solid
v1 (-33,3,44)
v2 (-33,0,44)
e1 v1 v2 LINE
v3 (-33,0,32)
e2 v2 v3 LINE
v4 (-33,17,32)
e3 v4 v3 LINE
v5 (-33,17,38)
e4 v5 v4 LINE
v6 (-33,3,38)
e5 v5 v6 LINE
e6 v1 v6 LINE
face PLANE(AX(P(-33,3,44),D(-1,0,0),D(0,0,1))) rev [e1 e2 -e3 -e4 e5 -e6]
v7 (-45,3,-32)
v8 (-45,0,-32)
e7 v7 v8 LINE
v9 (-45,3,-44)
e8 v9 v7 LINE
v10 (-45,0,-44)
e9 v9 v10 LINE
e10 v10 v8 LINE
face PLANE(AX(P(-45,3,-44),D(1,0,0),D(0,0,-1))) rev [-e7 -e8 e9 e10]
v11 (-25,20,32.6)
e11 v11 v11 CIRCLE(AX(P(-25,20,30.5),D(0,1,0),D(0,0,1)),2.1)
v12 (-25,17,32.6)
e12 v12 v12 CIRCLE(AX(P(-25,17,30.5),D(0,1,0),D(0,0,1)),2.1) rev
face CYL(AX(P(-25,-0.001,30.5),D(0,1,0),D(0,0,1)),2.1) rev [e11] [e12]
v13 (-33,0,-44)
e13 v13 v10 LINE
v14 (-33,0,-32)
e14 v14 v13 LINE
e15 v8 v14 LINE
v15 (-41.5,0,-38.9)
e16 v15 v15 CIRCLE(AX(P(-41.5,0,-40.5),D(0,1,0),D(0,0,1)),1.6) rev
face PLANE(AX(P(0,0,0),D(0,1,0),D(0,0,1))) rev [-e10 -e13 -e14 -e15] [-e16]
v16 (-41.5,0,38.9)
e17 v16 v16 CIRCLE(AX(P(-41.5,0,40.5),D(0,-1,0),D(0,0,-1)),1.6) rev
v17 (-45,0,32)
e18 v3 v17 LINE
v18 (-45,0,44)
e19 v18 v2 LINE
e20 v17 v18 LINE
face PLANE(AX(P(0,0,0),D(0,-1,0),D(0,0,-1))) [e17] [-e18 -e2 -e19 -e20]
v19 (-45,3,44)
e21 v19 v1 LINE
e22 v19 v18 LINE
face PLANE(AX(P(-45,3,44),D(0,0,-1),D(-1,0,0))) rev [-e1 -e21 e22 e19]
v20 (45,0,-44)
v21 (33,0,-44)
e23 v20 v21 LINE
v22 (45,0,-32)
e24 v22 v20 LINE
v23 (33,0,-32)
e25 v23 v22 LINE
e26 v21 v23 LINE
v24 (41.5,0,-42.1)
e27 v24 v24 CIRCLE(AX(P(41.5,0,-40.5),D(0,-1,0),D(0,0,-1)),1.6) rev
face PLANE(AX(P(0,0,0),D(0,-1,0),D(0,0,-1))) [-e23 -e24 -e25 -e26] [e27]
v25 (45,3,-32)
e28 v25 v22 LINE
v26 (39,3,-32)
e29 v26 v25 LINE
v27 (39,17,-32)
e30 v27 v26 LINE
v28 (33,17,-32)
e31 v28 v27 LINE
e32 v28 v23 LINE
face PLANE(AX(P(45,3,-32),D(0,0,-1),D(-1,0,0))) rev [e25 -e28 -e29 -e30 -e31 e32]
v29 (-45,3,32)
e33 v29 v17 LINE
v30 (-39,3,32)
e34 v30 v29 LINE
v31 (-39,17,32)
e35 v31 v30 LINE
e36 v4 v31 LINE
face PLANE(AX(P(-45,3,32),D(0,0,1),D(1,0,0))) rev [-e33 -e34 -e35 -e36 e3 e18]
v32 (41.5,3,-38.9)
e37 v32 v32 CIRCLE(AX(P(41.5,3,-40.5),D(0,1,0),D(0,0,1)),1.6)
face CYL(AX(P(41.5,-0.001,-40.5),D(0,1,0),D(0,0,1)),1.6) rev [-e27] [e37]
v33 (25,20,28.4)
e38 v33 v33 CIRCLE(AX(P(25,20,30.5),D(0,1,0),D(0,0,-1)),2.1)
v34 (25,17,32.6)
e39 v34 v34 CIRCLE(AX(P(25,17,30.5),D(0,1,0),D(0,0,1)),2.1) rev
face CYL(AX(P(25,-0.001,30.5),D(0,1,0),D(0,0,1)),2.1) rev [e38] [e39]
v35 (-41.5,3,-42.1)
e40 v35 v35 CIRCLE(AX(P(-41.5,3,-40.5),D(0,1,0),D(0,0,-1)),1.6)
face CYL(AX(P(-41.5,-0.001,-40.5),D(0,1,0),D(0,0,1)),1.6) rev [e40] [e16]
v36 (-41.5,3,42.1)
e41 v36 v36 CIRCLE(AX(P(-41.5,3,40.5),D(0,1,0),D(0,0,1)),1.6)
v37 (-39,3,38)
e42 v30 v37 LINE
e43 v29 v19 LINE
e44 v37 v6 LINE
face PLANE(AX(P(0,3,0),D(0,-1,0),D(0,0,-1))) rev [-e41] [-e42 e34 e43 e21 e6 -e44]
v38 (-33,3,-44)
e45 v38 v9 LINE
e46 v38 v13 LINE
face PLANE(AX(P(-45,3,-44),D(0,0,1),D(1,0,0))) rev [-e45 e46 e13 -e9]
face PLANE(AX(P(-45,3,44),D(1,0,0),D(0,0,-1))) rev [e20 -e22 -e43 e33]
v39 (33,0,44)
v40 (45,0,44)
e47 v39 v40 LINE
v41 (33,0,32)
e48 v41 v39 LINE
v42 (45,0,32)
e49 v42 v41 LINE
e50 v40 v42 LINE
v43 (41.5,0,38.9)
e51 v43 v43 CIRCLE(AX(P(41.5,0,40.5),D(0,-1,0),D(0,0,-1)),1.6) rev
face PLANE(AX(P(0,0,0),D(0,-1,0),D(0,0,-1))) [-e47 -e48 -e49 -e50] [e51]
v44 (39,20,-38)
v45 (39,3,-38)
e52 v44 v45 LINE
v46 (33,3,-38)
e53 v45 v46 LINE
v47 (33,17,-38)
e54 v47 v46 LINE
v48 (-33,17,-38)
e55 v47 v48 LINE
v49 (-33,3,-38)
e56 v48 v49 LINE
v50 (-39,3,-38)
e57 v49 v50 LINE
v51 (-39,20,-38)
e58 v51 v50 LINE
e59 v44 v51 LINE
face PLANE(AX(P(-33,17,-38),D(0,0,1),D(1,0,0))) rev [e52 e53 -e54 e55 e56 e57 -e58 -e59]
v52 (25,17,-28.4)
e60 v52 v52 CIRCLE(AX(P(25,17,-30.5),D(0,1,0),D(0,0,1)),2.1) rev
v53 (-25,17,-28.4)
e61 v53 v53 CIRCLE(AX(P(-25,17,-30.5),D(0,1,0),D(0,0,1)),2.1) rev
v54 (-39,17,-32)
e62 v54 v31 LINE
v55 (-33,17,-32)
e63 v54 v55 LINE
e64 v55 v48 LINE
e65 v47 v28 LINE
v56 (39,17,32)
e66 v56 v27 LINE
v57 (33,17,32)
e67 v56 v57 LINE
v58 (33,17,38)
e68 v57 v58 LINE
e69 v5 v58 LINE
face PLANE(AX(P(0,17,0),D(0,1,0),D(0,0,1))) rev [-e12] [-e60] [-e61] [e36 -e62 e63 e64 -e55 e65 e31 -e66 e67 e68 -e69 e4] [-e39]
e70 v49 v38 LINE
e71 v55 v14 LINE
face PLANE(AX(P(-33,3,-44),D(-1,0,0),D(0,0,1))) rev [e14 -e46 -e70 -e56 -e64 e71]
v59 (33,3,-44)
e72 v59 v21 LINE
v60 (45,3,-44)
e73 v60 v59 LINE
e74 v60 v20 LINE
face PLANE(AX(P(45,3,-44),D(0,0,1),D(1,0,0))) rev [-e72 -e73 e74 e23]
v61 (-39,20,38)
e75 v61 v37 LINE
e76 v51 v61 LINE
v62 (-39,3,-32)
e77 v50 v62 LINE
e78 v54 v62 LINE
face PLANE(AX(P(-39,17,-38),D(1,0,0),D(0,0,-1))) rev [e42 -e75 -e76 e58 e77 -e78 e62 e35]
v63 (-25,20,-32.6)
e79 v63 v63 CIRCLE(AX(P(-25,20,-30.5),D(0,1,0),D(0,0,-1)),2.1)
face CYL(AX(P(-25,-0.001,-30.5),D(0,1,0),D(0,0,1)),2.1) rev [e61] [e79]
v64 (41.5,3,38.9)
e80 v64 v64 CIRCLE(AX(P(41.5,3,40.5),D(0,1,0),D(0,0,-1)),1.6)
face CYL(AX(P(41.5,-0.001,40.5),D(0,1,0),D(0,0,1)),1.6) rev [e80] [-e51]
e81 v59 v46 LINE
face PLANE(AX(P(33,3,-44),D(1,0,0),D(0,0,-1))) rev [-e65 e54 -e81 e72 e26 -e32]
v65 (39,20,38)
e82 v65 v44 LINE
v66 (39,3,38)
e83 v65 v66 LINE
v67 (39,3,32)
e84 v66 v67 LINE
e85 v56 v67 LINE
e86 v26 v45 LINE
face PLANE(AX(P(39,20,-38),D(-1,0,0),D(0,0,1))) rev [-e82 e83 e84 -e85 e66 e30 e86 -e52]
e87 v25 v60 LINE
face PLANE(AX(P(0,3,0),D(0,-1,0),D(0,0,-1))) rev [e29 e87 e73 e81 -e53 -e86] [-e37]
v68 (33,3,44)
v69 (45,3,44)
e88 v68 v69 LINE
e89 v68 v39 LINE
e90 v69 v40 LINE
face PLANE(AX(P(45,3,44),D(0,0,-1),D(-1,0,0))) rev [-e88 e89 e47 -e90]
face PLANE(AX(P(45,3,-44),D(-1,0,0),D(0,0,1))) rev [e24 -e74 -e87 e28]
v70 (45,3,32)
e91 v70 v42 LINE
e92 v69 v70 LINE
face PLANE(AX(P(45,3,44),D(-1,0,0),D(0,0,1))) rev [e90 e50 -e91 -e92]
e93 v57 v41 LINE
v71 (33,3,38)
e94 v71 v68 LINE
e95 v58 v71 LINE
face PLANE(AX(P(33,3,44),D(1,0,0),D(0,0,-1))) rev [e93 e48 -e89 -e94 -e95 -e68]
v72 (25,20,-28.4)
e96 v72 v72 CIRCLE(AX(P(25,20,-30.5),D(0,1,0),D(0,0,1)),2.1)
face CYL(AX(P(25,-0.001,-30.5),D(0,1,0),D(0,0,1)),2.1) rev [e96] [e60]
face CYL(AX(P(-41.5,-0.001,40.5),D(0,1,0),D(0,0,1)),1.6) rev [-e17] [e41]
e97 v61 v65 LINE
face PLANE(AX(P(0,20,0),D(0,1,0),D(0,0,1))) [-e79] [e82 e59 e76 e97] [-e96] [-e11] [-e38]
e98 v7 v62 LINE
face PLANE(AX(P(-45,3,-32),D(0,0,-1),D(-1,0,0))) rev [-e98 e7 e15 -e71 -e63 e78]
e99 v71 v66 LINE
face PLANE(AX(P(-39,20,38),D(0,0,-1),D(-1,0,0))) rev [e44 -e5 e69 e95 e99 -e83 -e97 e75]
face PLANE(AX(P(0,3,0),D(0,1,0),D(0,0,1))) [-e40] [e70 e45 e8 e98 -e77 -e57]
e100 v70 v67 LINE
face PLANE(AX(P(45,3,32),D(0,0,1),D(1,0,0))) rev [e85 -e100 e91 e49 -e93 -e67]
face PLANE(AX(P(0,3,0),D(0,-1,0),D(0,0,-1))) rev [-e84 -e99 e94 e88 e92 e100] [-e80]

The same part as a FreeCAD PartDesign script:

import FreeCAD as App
import Part
import Sketcher
from FreeCAD import Vector
Q = App.Units.Quantity


def add_polygon(sketch, points):
    """Adds a closed chain of lines whose ends are joined by coincident constraints."""
    first, n = sketch.GeometryCount, len(points)
    for a, b in zip(points, points[1:] + points[:1]):
        sketch.addGeometry(Part.LineSegment(App.Vector(*a, 0), App.Vector(*b, 0)), False)
    for i in range(n):
        sketch.addConstraint(Sketcher.Constraint("Coincident", first + i, 2, first + (i + 1) % n, 1))

doc = App.newDocument("Part")
body = doc.addObject("PartDesign::Body", "Body")

sketch1 = doc.addObject("Sketcher::SketchObject", "Sketch")
body.addObject(sketch1)
sketch1.AttachmentSupport = (doc.XZ_Plane, [""])
sketch1.MapMode = "FlatFace"
add_polygon(sketch1, [(-45, 32), (-45, 44), (-33, 44), (-33, 32)])
sketch1.addConstraint([
    Sketcher.Constraint("Vertical", 0),
    Sketcher.Constraint("Horizontal", 1),
    Sketcher.Constraint("Vertical", 2),
    Sketcher.Constraint("Horizontal", 3),
    Sketcher.Constraint("Equal", 3, 0),
    Sketcher.Constraint("DistanceX", 1, 1, 1, 2, Q("12 mm")),
    Sketcher.Constraint("DistanceX", 0, 2, -1, 1, Q("45 mm")),
    Sketcher.Constraint("DistanceY", -1, 1, 0, 2, Q("44 mm")),
])
pad1 = doc.addObject("PartDesign::Pad", "Pad")
body.addObject(pad1)
pad1.Profile = sketch1
pad1.Length = 3
pad1.Reversed = True
body2 = doc.addObject("PartDesign::Body", "Body001")

sketch2 = doc.addObject("Sketcher::SketchObject", "Sketch001")
body2.addObject(sketch2)
sketch2.AttachmentSupport = (doc.getObject("XZ_Plane001"), [""])
sketch2.MapMode = "FlatFace"
add_polygon(sketch2, [(-45, -44), (-45, -32), (-33, -32), (-33, -44)])
sketch2.addConstraint([
    Sketcher.Constraint("Vertical", 0),
    Sketcher.Constraint("Horizontal", 1),
    Sketcher.Constraint("Vertical", 2),
    Sketcher.Constraint("Horizontal", 3),
    Sketcher.Constraint("Equal", 3, 0),
    Sketcher.Constraint("DistanceX", 1, 1, 1, 2, Q("12 mm")),
    Sketcher.Constraint("DistanceX", 0, 2, -1, 1, Q("45 mm")),
    Sketcher.Constraint("DistanceY", 0, 2, -1, 1, Q("32 mm")),
])
pad2 = doc.addObject("PartDesign::Pad", "Pad001")
body2.addObject(pad2)
pad2.Profile = sketch2
pad2.Length = 3
pad2.Reversed = True
body3 = doc.addObject("PartDesign::Body", "Body002")

sketch3 = doc.addObject("Sketcher::SketchObject", "Sketch002")
body3.addObject(sketch3)
sketch3.AttachmentSupport = (doc.getObject("XZ_Plane002"), [""])
sketch3.MapMode = "FlatFace"
add_polygon(sketch3, [(33, -44), (33, -32), (45, -32), (45, -44)])
sketch3.addConstraint([
    Sketcher.Constraint("Vertical", 0),
    Sketcher.Constraint("Horizontal", 1),
    Sketcher.Constraint("Vertical", 2),
    Sketcher.Constraint("Horizontal", 3),
    Sketcher.Constraint("Equal", 3, 0),
    Sketcher.Constraint("DistanceX", 1, 1, 1, 2, Q("12 mm")),
    Sketcher.Constraint("DistanceX", -1, 1, 0, 2, Q("33 mm")),
    Sketcher.Constraint("DistanceY", 0, 2, -1, 1, Q("32 mm")),
])
pad3 = doc.addObject("PartDesign::Pad", "Pad002")
body3.addObject(pad3)
pad3.Profile = sketch3
pad3.Length = 3
pad3.Reversed = True
body4 = doc.addObject("PartDesign::Body", "Body003")

sketch4 = doc.addObject("Sketcher::SketchObject", "Sketch003")
body4.addObject(sketch4)
sketch4.AttachmentSupport = (doc.getObject("XZ_Plane003"), [""])
sketch4.MapMode = "FlatFace"
add_polygon(sketch4, [(33, 32), (33, 44), (45, 44), (45, 32)])
sketch4.addConstraint([
    Sketcher.Constraint("Vertical", 0),
    Sketcher.Constraint("Horizontal", 1),
    Sketcher.Constraint("Vertical", 2),
    Sketcher.Constraint("Horizontal", 3),
    Sketcher.Constraint("Equal", 3, 0),
    Sketcher.Constraint("DistanceX", 1, 1, 1, 2, Q("12 mm")),
    Sketcher.Constraint("DistanceX", -1, 1, 0, 2, Q("33 mm")),
    Sketcher.Constraint("DistanceY", -1, 1, 0, 2, Q("44 mm")),
])
pad4 = doc.addObject("PartDesign::Pad", "Pad003")
body4.addObject(pad4)
pad4.Profile = sketch4
pad4.Length = 3
pad4.Reversed = True
body.AllowCompound = True
doc.recompute()

boolean = doc.addObject("PartDesign::Boolean", "Boolean")
body.addObject(boolean)
boolean.Type = "Fuse"
boolean.addObjects([body2])
doc.recompute()

boolean2 = doc.addObject("PartDesign::Boolean", "Boolean001")
body.addObject(boolean2)
boolean2.Type = "Fuse"
boolean2.addObjects([body3])
doc.recompute()

boolean3 = doc.addObject("PartDesign::Boolean", "Boolean002")
body.addObject(boolean3)
boolean3.Type = "Fuse"
boolean3.addObjects([body4])

sketch5 = doc.addObject("Sketcher::SketchObject", "Sketch004")
body.addObject(sketch5)
sketch5.AttachmentSupport = (doc.XZ_Plane, [""])
sketch5.MapMode = "FlatFace"
sketch5.AttachmentOffset = App.Placement(Vector(0, 0, -3), App.Rotation())
add_polygon(sketch5, [(-39, -38), (-39, -32), (-33, -32), (-33, -38)])
add_polygon(sketch5, [(-39, 32), (-39, 38), (-33, 38), (-33, 32)])
add_polygon(sketch5, [(33, -38), (33, -32), (39, -32), (39, -38)])
add_polygon(sketch5, [(33, 32), (33, 38), (39, 38), (39, 32)])
sketch5.addConstraint([
    Sketcher.Constraint("Vertical", 0),
    Sketcher.Constraint("Horizontal", 1),
    Sketcher.Constraint("Vertical", 2),
    Sketcher.Constraint("Horizontal", 3),
    Sketcher.Constraint("Vertical", 4),
    Sketcher.Constraint("Horizontal", 5),
    Sketcher.Constraint("Vertical", 6),
    Sketcher.Constraint("Horizontal", 7),
    Sketcher.Constraint("Vertical", 8),
    Sketcher.Constraint("Horizontal", 9),
    Sketcher.Constraint("Vertical", 10),
    Sketcher.Constraint("Horizontal", 11),
    Sketcher.Constraint("Vertical", 12),
    Sketcher.Constraint("Horizontal", 13),
    Sketcher.Constraint("Vertical", 14),
    Sketcher.Constraint("Horizontal", 15),
    Sketcher.Constraint("Symmetric", 6, 2, 8, 2, -1, 1),
    Sketcher.Constraint("Symmetric", 4, 2, 10, 2, -1, 1),
    Sketcher.Constraint("Symmetric", 2, 2, 12, 2, -1, 1),
    Sketcher.Constraint("Symmetric", 0, 2, 14, 2, -1, 1),
    Sketcher.Constraint("Symmetric", 1, 2, 8, 2, -2),
    Sketcher.Constraint("Symmetric", 3, 2, 10, 2, -2),
    Sketcher.Constraint("Equal", 15, 0),
    Sketcher.Constraint("DistanceX", 1, 1, 1, 2, Q("6 mm")),
    Sketcher.Constraint("DistanceX", 0, 2, -1, 1, Q("39 mm")),
    Sketcher.Constraint("DistanceY", 0, 2, -1, 1, Q("32 mm")),
])
pad5 = doc.addObject("PartDesign::Pad", "Pad004")
body.addObject(pad5)
pad5.Profile = sketch5
pad5.Length = 14
pad5.Reversed = True

sketch6 = doc.addObject("Sketcher::SketchObject", "Sketch005")
body.addObject(sketch6)
sketch6.AttachmentSupport = (doc.XZ_Plane, [""])
sketch6.MapMode = "FlatFace"
sketch6.AttachmentOffset = App.Placement(Vector(0, 0, -17), App.Rotation())
add_polygon(sketch6, [(-39, -38), (-39, 38), (39, 38), (39, -38)])
sketch6.addConstraint([
    Sketcher.Constraint("Vertical", 0),
    Sketcher.Constraint("Horizontal", 1),
    Sketcher.Constraint("Vertical", 2),
    Sketcher.Constraint("Horizontal", 3),
    Sketcher.Constraint("Symmetric", 0, 2, 2, 2, -1, 1),
    Sketcher.Constraint("DistanceX", 1, 1, 1, 2, Q("78 mm")),
    Sketcher.Constraint("DistanceY", 0, 1, 0, 2, Q("76 mm")),
])
pad6 = doc.addObject("PartDesign::Pad", "Pad005")
body.addObject(pad6)
pad6.Profile = sketch6
pad6.Length = 3
pad6.Reversed = True

sketch7 = doc.addObject("Sketcher::SketchObject", "Sketch006")
body.addObject(sketch7)
sketch7.AttachmentSupport = (doc.XZ_Plane, [""])
sketch7.MapMode = "FlatFace"
sketch7.AttachmentOffset = App.Placement(Vector(0, 0, -3), App.Rotation())
sketch7.addGeometry(Part.Circle(Vector(41.5, 40.5, 0), Vector(0, 0, 1), 1.6), False)
sketch7.addConstraint([
    Sketcher.Constraint("Diameter", 0, Q("3.2 mm")),
    Sketcher.Constraint("DistanceX", -1, 1, 0, 3, Q("41.5 mm")),
    Sketcher.Constraint("DistanceY", -1, 1, 0, 3, Q("40.5 mm")),
])
pocket1 = doc.addObject("PartDesign::Pocket", "Pocket")
body.addObject(pocket1)
pocket1.Profile = sketch7
pocket1.Type = "UpToFirst"
pocket1.Reversed = True

sketch8 = doc.addObject("Sketcher::SketchObject", "Sketch007")
body.addObject(sketch8)
sketch8.AttachmentSupport = (doc.XZ_Plane, [""])
sketch8.MapMode = "FlatFace"
sketch8.AttachmentOffset = App.Placement(Vector(0, 0, -3), App.Rotation())
sketch8.addGeometry(Part.Circle(Vector(-41.5, -40.5, 0), Vector(0, 0, 1), 1.6), False)
sketch8.addConstraint([
    Sketcher.Constraint("Diameter", 0, Q("3.2 mm")),
    Sketcher.Constraint("DistanceX", 0, 3, -1, 1, Q("41.5 mm")),
    Sketcher.Constraint("DistanceY", 0, 3, -1, 1, Q("40.5 mm")),
])
pocket2 = doc.addObject("PartDesign::Pocket", "Pocket001")
body.addObject(pocket2)
pocket2.Profile = sketch8
pocket2.Type = "UpToFirst"
pocket2.Reversed = True

sketch9 = doc.addObject("Sketcher::SketchObject", "Sketch008")
body.addObject(sketch9)
sketch9.AttachmentSupport = (doc.XZ_Plane, [""])
sketch9.MapMode = "FlatFace"
sketch9.AttachmentOffset = App.Placement(Vector(0, 0, -3), App.Rotation())
sketch9.addGeometry(Part.Circle(Vector(-41.5, 40.5, 0), Vector(0, 0, 1), 1.6), False)
sketch9.addConstraint([
    Sketcher.Constraint("Diameter", 0, Q("3.2 mm")),
    Sketcher.Constraint("DistanceX", 0, 3, -1, 1, Q("41.5 mm")),
    Sketcher.Constraint("DistanceY", -1, 1, 0, 3, Q("40.5 mm")),
])
pocket3 = doc.addObject("PartDesign::Pocket", "Pocket002")
body.addObject(pocket3)
pocket3.Profile = sketch9
pocket3.Type = "UpToFirst"
pocket3.Reversed = True

sketch10 = doc.addObject("Sketcher::SketchObject", "Sketch009")
body.addObject(sketch10)
sketch10.AttachmentSupport = (doc.XZ_Plane, [""])
sketch10.MapMode = "FlatFace"
sketch10.AttachmentOffset = App.Placement(Vector(0, 0, -3), App.Rotation())
sketch10.addGeometry(Part.Circle(Vector(41.5, -40.5, 0), Vector(0, 0, 1), 1.6), False)
sketch10.addConstraint([
    Sketcher.Constraint("Diameter", 0, Q("3.2 mm")),
    Sketcher.Constraint("DistanceX", -1, 1, 0, 3, Q("41.5 mm")),
    Sketcher.Constraint("DistanceY", 0, 3, -1, 1, Q("40.5 mm")),
])
pocket4 = doc.addObject("PartDesign::Pocket", "Pocket003")
body.addObject(pocket4)
pocket4.Profile = sketch10
pocket4.Type = "UpToFirst"
pocket4.Reversed = True

sketch11 = doc.addObject("Sketcher::SketchObject", "Sketch010")
body.addObject(sketch11)
sketch11.AttachmentSupport = (doc.XZ_Plane, [""])
sketch11.MapMode = "FlatFace"
sketch11.AttachmentOffset = App.Placement(Vector(0, 0, -20), App.Rotation())
sketch11.addGeometry(Part.Circle(Vector(25, -30.5, 0), Vector(0, 0, 1), 2.1), False)
sketch11.addConstraint([
    Sketcher.Constraint("Diameter", 0, Q("4.2 mm")),
    Sketcher.Constraint("DistanceX", -1, 1, 0, 3, Q("25 mm")),
    Sketcher.Constraint("DistanceY", 0, 3, -1, 1, Q("30.5 mm")),
])
pocket5 = doc.addObject("PartDesign::Pocket", "Pocket004")
body.addObject(pocket5)
pocket5.Profile = sketch11
pocket5.Type = "UpToFirst"
pocket5.Reversed = True

sketch12 = doc.addObject("Sketcher::SketchObject", "Sketch011")
body.addObject(sketch12)
sketch12.AttachmentSupport = (doc.XZ_Plane, [""])
sketch12.MapMode = "FlatFace"
sketch12.AttachmentOffset = App.Placement(Vector(0, 0, -20), App.Rotation())
sketch12.addGeometry(Part.Circle(Vector(25, 30.5, 0), Vector(0, 0, 1), 2.1), False)
sketch12.addConstraint([
    Sketcher.Constraint("Diameter", 0, Q("4.2 mm")),
    Sketcher.Constraint("DistanceX", -1, 1, 0, 3, Q("25 mm")),
    Sketcher.Constraint("DistanceY", -1, 1, 0, 3, Q("30.5 mm")),
])
pocket6 = doc.addObject("PartDesign::Pocket", "Pocket005")
body.addObject(pocket6)
pocket6.Profile = sketch12
pocket6.Type = "UpToFirst"
pocket6.Reversed = True

sketch13 = doc.addObject("Sketcher::SketchObject", "Sketch012")
body.addObject(sketch13)
sketch13.AttachmentSupport = (doc.XZ_Plane, [""])
sketch13.MapMode = "FlatFace"
sketch13.AttachmentOffset = App.Placement(Vector(0, 0, -20), App.Rotation())
sketch13.addGeometry(Part.Circle(Vector(-25, -30.5, 0), Vector(0, 0, 1), 2.1), False)
sketch13.addConstraint([
    Sketcher.Constraint("Diameter", 0, Q("4.2 mm")),
    Sketcher.Constraint("DistanceX", 0, 3, -1, 1, Q("25 mm")),
    Sketcher.Constraint("DistanceY", 0, 3, -1, 1, Q("30.5 mm")),
])
pocket7 = doc.addObject("PartDesign::Pocket", "Pocket006")
body.addObject(pocket7)
pocket7.Profile = sketch13
pocket7.Type = "UpToFirst"
pocket7.Reversed = True

sketch14 = doc.addObject("Sketcher::SketchObject", "Sketch013")
body.addObject(sketch14)
sketch14.AttachmentSupport = (doc.XZ_Plane, [""])
sketch14.MapMode = "FlatFace"
sketch14.AttachmentOffset = App.Placement(Vector(0, 0, -20), App.Rotation())
sketch14.addGeometry(Part.Circle(Vector(-25, 30.5, 0), Vector(0, 0, 1), 2.1), False)
sketch14.addConstraint([
    Sketcher.Constraint("Diameter", 0, Q("4.2 mm")),
    Sketcher.Constraint("DistanceX", 0, 3, -1, 1, Q("25 mm")),
    Sketcher.Constraint("DistanceY", -1, 1, 0, 3, Q("30.5 mm")),
])
pocket8 = doc.addObject("PartDesign::Pocket", "Pocket007")
body.addObject(pocket8)
pocket8.Profile = sketch14
pocket8.Type = "UpToFirst"
pocket8.Reversed = True

doc.recompute()
